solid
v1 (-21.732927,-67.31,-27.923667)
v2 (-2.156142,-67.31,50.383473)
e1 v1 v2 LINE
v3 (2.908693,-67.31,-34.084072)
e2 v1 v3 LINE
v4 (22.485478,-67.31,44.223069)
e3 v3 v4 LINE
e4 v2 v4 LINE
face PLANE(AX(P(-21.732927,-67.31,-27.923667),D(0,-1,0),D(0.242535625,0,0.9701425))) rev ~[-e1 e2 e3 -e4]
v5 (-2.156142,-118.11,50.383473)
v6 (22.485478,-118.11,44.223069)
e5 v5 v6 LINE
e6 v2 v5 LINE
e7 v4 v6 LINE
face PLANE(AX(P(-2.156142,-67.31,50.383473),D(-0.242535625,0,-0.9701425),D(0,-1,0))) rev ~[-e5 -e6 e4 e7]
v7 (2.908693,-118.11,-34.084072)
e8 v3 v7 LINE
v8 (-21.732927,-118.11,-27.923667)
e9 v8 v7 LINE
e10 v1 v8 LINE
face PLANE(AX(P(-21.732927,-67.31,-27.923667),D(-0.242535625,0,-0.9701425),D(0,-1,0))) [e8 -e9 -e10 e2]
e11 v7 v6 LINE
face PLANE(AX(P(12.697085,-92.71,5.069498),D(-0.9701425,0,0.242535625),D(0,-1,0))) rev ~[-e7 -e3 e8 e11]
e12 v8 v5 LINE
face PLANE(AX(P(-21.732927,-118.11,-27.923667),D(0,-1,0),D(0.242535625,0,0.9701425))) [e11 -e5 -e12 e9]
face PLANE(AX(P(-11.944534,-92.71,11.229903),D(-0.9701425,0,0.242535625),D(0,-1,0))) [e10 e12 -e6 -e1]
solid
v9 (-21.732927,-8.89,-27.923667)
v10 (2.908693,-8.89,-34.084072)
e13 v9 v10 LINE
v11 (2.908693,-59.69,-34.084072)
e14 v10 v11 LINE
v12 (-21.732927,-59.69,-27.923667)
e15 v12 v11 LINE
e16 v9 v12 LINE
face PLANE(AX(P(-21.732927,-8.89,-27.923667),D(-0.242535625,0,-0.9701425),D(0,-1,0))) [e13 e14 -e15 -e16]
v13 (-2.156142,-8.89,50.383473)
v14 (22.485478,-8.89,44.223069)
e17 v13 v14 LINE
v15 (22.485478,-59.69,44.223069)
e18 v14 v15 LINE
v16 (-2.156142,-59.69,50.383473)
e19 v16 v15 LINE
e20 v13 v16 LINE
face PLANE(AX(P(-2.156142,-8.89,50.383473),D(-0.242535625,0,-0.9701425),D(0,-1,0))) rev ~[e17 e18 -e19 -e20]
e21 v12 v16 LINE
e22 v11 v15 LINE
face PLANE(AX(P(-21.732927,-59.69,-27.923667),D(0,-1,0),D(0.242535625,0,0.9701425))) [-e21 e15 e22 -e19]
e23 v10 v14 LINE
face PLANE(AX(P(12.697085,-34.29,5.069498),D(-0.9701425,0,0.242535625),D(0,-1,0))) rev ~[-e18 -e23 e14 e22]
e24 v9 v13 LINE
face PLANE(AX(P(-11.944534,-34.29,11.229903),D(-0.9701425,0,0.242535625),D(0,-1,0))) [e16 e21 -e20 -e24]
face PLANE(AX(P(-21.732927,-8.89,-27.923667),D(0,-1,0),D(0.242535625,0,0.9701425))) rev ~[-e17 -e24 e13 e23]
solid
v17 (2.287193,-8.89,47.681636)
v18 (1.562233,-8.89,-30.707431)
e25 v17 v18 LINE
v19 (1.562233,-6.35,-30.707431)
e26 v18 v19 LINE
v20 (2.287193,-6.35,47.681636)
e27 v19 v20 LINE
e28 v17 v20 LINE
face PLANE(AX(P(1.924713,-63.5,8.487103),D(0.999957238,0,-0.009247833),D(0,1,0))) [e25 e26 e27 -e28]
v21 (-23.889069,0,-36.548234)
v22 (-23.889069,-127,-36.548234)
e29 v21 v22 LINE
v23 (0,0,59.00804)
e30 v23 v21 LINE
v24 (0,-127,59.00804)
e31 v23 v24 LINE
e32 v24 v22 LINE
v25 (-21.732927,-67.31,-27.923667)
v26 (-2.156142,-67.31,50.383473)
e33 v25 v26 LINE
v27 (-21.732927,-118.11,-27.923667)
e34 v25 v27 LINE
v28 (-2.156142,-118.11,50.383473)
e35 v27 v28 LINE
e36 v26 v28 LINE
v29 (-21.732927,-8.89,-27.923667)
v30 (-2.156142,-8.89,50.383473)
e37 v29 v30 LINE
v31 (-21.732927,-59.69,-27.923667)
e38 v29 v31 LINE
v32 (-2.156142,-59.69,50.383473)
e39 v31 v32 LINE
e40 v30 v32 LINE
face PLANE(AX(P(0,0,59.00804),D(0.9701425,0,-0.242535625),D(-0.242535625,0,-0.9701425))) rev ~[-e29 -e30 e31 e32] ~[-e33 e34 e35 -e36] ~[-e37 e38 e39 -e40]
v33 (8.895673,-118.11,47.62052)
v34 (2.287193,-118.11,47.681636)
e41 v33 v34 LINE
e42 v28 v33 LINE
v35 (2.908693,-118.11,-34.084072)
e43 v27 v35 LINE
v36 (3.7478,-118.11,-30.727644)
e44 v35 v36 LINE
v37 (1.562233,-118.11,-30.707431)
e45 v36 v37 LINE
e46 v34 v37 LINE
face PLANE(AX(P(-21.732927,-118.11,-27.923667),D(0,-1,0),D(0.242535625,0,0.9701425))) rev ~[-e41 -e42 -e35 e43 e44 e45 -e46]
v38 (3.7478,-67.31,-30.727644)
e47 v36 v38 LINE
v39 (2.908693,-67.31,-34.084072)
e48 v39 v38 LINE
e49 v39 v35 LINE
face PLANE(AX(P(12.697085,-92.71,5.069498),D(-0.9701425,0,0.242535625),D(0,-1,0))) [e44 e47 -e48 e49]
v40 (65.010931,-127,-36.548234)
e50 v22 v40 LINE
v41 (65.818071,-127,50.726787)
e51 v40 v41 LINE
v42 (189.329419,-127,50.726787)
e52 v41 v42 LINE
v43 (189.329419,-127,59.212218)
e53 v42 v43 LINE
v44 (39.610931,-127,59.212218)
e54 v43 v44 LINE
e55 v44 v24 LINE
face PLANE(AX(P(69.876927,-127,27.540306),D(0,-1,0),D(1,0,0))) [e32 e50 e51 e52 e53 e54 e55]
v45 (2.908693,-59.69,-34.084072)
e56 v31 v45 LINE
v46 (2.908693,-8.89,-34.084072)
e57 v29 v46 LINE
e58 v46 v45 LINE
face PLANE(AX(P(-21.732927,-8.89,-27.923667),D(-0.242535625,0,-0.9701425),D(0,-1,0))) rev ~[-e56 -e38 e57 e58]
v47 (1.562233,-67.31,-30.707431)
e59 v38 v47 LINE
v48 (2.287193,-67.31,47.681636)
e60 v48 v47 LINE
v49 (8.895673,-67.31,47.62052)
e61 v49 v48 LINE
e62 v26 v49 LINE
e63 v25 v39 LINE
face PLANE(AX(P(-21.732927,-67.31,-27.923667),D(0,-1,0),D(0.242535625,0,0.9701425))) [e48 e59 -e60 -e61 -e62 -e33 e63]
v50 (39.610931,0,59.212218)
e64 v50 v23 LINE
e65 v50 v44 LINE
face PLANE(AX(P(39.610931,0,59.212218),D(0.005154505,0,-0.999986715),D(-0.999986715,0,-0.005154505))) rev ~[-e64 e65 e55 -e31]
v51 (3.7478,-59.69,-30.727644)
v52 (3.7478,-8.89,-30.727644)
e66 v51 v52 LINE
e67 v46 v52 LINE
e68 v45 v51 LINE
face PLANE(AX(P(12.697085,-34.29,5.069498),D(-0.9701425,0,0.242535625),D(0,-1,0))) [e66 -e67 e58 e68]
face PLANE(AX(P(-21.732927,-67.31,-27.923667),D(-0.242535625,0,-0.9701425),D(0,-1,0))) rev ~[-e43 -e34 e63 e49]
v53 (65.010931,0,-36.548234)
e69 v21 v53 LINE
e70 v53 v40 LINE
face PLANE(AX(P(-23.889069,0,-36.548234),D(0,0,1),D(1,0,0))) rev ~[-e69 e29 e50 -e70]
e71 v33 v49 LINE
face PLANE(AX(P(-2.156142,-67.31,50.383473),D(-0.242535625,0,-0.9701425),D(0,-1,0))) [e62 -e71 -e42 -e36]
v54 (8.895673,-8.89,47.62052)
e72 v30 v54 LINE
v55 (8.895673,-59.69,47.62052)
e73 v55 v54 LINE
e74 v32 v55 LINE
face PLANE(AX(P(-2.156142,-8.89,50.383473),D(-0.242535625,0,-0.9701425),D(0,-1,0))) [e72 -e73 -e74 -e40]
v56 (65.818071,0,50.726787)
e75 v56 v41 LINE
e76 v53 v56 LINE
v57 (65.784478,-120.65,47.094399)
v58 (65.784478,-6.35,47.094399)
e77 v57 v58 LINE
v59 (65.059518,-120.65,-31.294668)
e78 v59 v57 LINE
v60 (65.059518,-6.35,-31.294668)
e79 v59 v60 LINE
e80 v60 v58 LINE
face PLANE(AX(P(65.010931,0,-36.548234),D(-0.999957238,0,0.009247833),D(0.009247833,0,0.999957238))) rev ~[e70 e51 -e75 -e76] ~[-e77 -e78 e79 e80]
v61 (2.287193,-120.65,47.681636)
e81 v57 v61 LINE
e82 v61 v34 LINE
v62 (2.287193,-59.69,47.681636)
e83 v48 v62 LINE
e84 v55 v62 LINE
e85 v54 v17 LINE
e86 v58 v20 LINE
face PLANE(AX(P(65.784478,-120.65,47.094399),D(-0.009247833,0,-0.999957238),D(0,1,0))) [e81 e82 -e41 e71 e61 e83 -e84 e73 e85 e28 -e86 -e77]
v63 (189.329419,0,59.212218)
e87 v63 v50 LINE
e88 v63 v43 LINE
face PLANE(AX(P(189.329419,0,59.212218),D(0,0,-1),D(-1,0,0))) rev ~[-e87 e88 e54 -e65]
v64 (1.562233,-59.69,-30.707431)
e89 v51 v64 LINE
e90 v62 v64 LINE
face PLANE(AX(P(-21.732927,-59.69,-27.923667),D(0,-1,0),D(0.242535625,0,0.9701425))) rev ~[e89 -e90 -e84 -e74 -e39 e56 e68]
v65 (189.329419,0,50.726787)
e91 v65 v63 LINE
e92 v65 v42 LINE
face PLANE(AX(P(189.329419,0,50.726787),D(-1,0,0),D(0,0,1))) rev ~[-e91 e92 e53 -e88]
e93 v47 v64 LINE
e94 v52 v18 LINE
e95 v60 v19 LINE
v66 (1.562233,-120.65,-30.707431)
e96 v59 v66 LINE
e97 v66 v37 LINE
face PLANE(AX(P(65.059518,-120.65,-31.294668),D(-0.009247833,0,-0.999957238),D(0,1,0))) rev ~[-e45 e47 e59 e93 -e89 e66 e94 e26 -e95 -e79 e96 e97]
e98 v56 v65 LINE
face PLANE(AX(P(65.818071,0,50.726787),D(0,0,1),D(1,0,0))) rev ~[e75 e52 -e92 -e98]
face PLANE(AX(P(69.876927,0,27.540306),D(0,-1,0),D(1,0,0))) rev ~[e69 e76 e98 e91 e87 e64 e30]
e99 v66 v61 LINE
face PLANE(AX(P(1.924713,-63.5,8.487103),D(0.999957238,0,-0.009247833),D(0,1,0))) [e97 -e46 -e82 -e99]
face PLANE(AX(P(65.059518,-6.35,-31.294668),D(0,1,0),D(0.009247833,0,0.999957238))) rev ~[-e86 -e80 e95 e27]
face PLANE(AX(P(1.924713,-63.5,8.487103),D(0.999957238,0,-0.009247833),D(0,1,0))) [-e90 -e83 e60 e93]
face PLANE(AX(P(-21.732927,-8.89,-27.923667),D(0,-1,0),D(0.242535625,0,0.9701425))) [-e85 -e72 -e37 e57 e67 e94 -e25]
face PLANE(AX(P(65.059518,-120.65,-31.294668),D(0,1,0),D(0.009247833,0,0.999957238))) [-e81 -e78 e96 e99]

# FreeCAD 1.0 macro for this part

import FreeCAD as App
import Part
import Sketcher
Q = App.Units.Quantity

doc = App.newDocument("Part")
params = doc.addObject("Spreadsheet::Sheet", "Params")
for row, (alias, value) in enumerate([
    ("sketch1_width", "3.5 in"),
    ("pad1_length", "5 in"),
    ("sketch2_width", "4.5 in"),
    ("pocket1_length", "2.5 in"),
    ("sketch3_width", "2 in"),
    ("pocket2_length", "1 in"),
    ("sketch4_width", "2 in"),
    ("pad2_length", "1 in"),
    ("sketch5_width", "2 in"),
    ("pad3_length", "1 in"),
], start=1):
    params.set(f"A{row}", alias)
    params.set(f"B{row}", "=" + value)
    params.setAlias(f"B{row}", alias)

body = doc.addObject("PartDesign::Body", "Body")

# Sketch on XZ plane
sketch1 = body.newObject("Sketcher::SketchObject", "Sketch")
sketch1.AttachmentSupport = (doc.getObject("XZ_Plane"), [""])
sketch1.MapMode = "FlatFace"
sketch1.addGeometry([
    Part.LineSegment(App.Vector(40, 59, 0), App.Vector(0, 59, 0)),  # 0
    Part.LineSegment(App.Vector(0, 59, 0), App.Vector(-24, -37, 0)),  # 1
    Part.LineSegment(App.Vector(-24, -37, 0), App.Vector(65, -37, 0)),  # 2
    Part.LineSegment(App.Vector(65, -37, 0), App.Vector(66, 51, 0)),  # 3
    Part.LineSegment(App.Vector(66, 51, 0), App.Vector(189, 51, 0)),  # 4
    Part.LineSegment(App.Vector(189, 51, 0), App.Vector(189, 59, 0)),  # 5
    Part.LineSegment(App.Vector(189, 59, 0), App.Vector(40, 59, 0)),  # 6
], False)
sketch1.addConstraint([
    Sketcher.Constraint("Coincident", 0, 2, 1, 1),
    Sketcher.Constraint("Coincident", 1, 2, 2, 1),
    Sketcher.Constraint("Coincident", 2, 2, 3, 1),
    Sketcher.Constraint("Coincident", 3, 2, 4, 1),
    Sketcher.Constraint("Coincident", 4, 2, 5, 1),
    Sketcher.Constraint("Coincident", 5, 2, 6, 1),
    Sketcher.Constraint("Coincident", 6, 2, 0, 1),
    Sketcher.Constraint("Horizontal", 2),
    Sketcher.Constraint("Horizontal", 4),
    Sketcher.Constraint("Vertical", 5),
    Sketcher.Constraint("Horizontal", 6),
    Sketcher.Constraint("PointOnObject", 0, 2, -2),
    Sketcher.Constraint("DistanceX", 2, 1, 2, 2, Q("3.5 in")),
    Sketcher.Constraint("DistanceX", 6, 2, 2, 2, Q("1 in")),
    Sketcher.Constraint("DistanceX", 4, 1, 4, 2, Q("123.511349 mm")),
    Sketcher.Constraint("DistanceY", 5, 1, 5, 2, Q("8.485431 mm")),
    Sketcher.Constraint("DistanceX", 6, 2, 6, 1, Q("149.718488 mm")),
    Sketcher.Constraint("DistanceY", -1, 1, 0, 2, Q("59.00804 mm")),
    Sketcher.Constraint("DistanceX", 1, 2, -1, 1, Q("23.889069 mm")),
    Sketcher.Constraint("DistanceY", 2, 2, 3, 2, Q("87.275021 mm")),
    Sketcher.Constraint("Distance", 1, Q("98.497153 mm")),
])
sketch1.setExpression("Constraints[12]", "Params.sketch1_width")
pad1 = body.newObject("PartDesign::Pad", "Pad")
pad1.Profile = sketch1
pad1.setExpression("Length", "Params.pad1_length")

# Sketch on an angled plane
sketch2 = body.newObject("Sketcher::SketchObject", "Sketch001")
sketch2.Placement = App.Placement(App.Vector(65.343349, 0, -0.60431), App.Rotation(App.Vector(0, 1, 0), App.Vector(0.009247833, 0, 0.999957238), App.Vector(0.999957238, 0, -0.009247833), "ZXY"))
sketch2.addGeometry([
    Part.LineSegment(App.Vector(-121, 48, 0), App.Vector(-121, -31, 0)),
    Part.LineSegment(App.Vector(-121, -31, 0), App.Vector(-6, -31, 0)),
    Part.LineSegment(App.Vector(-6, -31, 0), App.Vector(-6, 48, 0)),
    Part.LineSegment(App.Vector(-6, 48, 0), App.Vector(-121, 48, 0)),
], False)
sketch2.addConstraint([
    Sketcher.Constraint("Coincident", 0, 2, 1, 1),
    Sketcher.Constraint("Coincident", 1, 2, 2, 1),
    Sketcher.Constraint("Coincident", 2, 2, 3, 1),
    Sketcher.Constraint("Coincident", 3, 2, 0, 1),
    Sketcher.Constraint("Vertical", 0),
    Sketcher.Constraint("Horizontal", 1),
    Sketcher.Constraint("Vertical", 2),
    Sketcher.Constraint("Horizontal", 3),
    Sketcher.Constraint("DistanceX", 1, 1, 1, 2, Q("4.5 in")),
    Sketcher.Constraint("DistanceX", 0, 2, -1, 1, Q("4.75 in")),
    Sketcher.Constraint("DistanceY", 0, 2, 0, 1, Q("78.39242 mm")),
    Sketcher.Constraint("DistanceY", 0, 2, -1, 1, Q("30.691671 mm")),
])
sketch2.setExpression("Constraints[8]", "Params.sketch2_width")
pocket1 = body.newObject("PartDesign::Pocket", "Pocket")
pocket1.Profile = sketch2
pocket1.setExpression("Length", "Params.pocket1_length")

# Sketch on an angled plane
sketch3 = body.newObject("Sketcher::SketchObject", "Sketch002")
sketch3.Placement = App.Placement(App.Vector(-13.884245, 0, 3.471061), App.Rotation(App.Vector(0, -1, 0), App.Vector(0.242535625, 0, 0.9701425), App.Vector(-0.9701425, 0, 0.242535625), "ZXY"))
sketch3.addGeometry([
    Part.LineSegment(App.Vector(9, 48, 0), App.Vector(9, -32, 0)),  # 0
    Part.LineSegment(App.Vector(9, -32, 0), App.Vector(60, -32, 0)),  # 1
    Part.LineSegment(App.Vector(60, -32, 0), App.Vector(60, 48, 0)),  # 2
    Part.LineSegment(App.Vector(60, 48, 0), App.Vector(9, 48, 0)),  # 3
    Part.LineSegment(App.Vector(67, 48, 0), App.Vector(67, -32, 0)),  # 4
    Part.LineSegment(App.Vector(67, -32, 0), App.Vector(118, -32, 0)),  # 5
    Part.LineSegment(App.Vector(118, -32, 0), App.Vector(118, 48, 0)),  # 6
    Part.LineSegment(App.Vector(118, 48, 0), App.Vector(67, 48, 0)),  # 7
], False)
sketch3.addConstraint([
    Sketcher.Constraint("Coincident", 0, 2, 1, 1),
    Sketcher.Constraint("Coincident", 1, 2, 2, 1),
    Sketcher.Constraint("Coincident", 2, 2, 3, 1),
    Sketcher.Constraint("Coincident", 3, 2, 0, 1),
    Sketcher.Constraint("Coincident", 4, 2, 5, 1),
    Sketcher.Constraint("Coincident", 5, 2, 6, 1),
    Sketcher.Constraint("Coincident", 6, 2, 7, 1),
    Sketcher.Constraint("Coincident", 7, 2, 4, 1),
    Sketcher.Constraint("Vertical", 0),
    Sketcher.Constraint("Horizontal", 1),
    Sketcher.Constraint("Vertical", 2),
    Sketcher.Constraint("Horizontal", 3),
    Sketcher.Constraint("Vertical", 4),
    Sketcher.Constraint("Horizontal", 5),
    Sketcher.Constraint("Vertical", 6),
    Sketcher.Constraint("Horizontal", 7),
    Sketcher.Constraint("Horizontal", 1, 2, 4, 2),
    Sketcher.Constraint("Horizontal", 3, 2, 6, 2),
    Sketcher.Constraint("Equal", 3, 5),
    Sketcher.Constraint("DistanceX", 1, 1, 1, 2, Q("2 in")),
    Sketcher.Constraint("DistanceX", 1, 2, 4, 2, Q("0.3 in")),
    Sketcher.Constraint("DistanceX", -1, 1, 0, 2, Q("0.35 in")),
    Sketcher.Constraint("DistanceY", 0, 2, 0, 1, Q("80.717153 mm")),
    Sketcher.Constraint("DistanceY", 0, 2, -1, 1, Q("32.360945 mm")),
])
sketch3.setExpression("Constraints[19]", "Params.sketch3_width")
pocket2 = body.newObject("PartDesign::Pocket", "Pocket001")
pocket2.Profile = sketch3
pocket2.setExpression("Length", "Params.pocket2_length")
body2 = doc.addObject("PartDesign::Body", "Body001")

# Sketch on an angled plane
sketch4 = body2.newObject("Sketcher::SketchObject", "Sketch003")
sketch4.Placement = App.Placement(App.Vector(-13.884245, 0, 3.471061), App.Rotation(App.Vector(0, -1, 0), App.Vector(0.242535625, 0, 0.9701425), App.Vector(-0.9701425, 0, 0.242535625), "ZXY"))
sketch4.addGeometry([
    Part.LineSegment(App.Vector(9, 48, 0), App.Vector(9, -32, 0)),
    Part.LineSegment(App.Vector(9, -32, 0), App.Vector(60, -32, 0)),
    Part.LineSegment(App.Vector(60, -32, 0), App.Vector(60, 48, 0)),
    Part.LineSegment(App.Vector(60, 48, 0), App.Vector(9, 48, 0)),
], False)
sketch4.addConstraint([
    Sketcher.Constraint("Coincident", 0, 2, 1, 1),
    Sketcher.Constraint("Coincident", 1, 2, 2, 1),
    Sketcher.Constraint("Coincident", 2, 2, 3, 1),
    Sketcher.Constraint("Coincident", 3, 2, 0, 1),
    Sketcher.Constraint("Vertical", 0),
    Sketcher.Constraint("Horizontal", 1),
    Sketcher.Constraint("Vertical", 2),
    Sketcher.Constraint("Horizontal", 3),
    Sketcher.Constraint("DistanceX", 1, 1, 1, 2, Q("2 in")),
    Sketcher.Constraint("DistanceX", -1, 1, 0, 2, Q("0.35 in")),
    Sketcher.Constraint("DistanceY", 0, 2, 0, 1, Q("80.717153 mm")),
    Sketcher.Constraint("DistanceY", 0, 2, -1, 1, Q("32.360945 mm")),
])
sketch4.setExpression("Constraints[8]", "Params.sketch4_width")
pad2 = body2.newObject("PartDesign::Pad", "Pad001")
pad2.Profile = sketch4
pad2.setExpression("Length", "Params.pad2_length")
pad2.Reversed = True
body3 = doc.addObject("PartDesign::Body", "Body002")

# Sketch on an angled plane
sketch5 = body3.newObject("Sketcher::SketchObject", "Sketch004")
sketch5.Placement = App.Placement(App.Vector(-13.884245, 0, 3.471061), App.Rotation(App.Vector(0, -1, 0), App.Vector(0.242535625, 0, 0.9701425), App.Vector(-0.9701425, 0, 0.242535625), "ZXY"))
sketch5.addGeometry([
    Part.LineSegment(App.Vector(67, 48, 0), App.Vector(67, -32, 0)),
    Part.LineSegment(App.Vector(67, -32, 0), App.Vector(118, -32, 0)),
    Part.LineSegment(App.Vector(118, -32, 0), App.Vector(118, 48, 0)),
    Part.LineSegment(App.Vector(118, 48, 0), App.Vector(67, 48, 0)),
], False)
sketch5.addConstraint([
    Sketcher.Constraint("Coincident", 0, 2, 1, 1),
    Sketcher.Constraint("Coincident", 1, 2, 2, 1),
    Sketcher.Constraint("Coincident", 2, 2, 3, 1),
    Sketcher.Constraint("Coincident", 3, 2, 0, 1),
    Sketcher.Constraint("Vertical", 0),
    Sketcher.Constraint("Horizontal", 1),
    Sketcher.Constraint("Vertical", 2),
    Sketcher.Constraint("Horizontal", 3),
    Sketcher.Constraint("DistanceX", 1, 1, 1, 2, Q("2 in")),
    Sketcher.Constraint("DistanceX", -1, 1, 0, 2, Q("2.65 in")),
    Sketcher.Constraint("DistanceY", 0, 2, 0, 1, Q("80.717153 mm")),
    Sketcher.Constraint("DistanceY", 0, 2, -1, 1, Q("32.360945 mm")),
])
sketch5.setExpression("Constraints[8]", "Params.sketch5_width")
pad3 = body3.newObject("PartDesign::Pad", "Pad002")
pad3.Profile = sketch5
pad3.setExpression("Length", "Params.pad3_length")
pad3.Reversed = True

doc.recompute()
